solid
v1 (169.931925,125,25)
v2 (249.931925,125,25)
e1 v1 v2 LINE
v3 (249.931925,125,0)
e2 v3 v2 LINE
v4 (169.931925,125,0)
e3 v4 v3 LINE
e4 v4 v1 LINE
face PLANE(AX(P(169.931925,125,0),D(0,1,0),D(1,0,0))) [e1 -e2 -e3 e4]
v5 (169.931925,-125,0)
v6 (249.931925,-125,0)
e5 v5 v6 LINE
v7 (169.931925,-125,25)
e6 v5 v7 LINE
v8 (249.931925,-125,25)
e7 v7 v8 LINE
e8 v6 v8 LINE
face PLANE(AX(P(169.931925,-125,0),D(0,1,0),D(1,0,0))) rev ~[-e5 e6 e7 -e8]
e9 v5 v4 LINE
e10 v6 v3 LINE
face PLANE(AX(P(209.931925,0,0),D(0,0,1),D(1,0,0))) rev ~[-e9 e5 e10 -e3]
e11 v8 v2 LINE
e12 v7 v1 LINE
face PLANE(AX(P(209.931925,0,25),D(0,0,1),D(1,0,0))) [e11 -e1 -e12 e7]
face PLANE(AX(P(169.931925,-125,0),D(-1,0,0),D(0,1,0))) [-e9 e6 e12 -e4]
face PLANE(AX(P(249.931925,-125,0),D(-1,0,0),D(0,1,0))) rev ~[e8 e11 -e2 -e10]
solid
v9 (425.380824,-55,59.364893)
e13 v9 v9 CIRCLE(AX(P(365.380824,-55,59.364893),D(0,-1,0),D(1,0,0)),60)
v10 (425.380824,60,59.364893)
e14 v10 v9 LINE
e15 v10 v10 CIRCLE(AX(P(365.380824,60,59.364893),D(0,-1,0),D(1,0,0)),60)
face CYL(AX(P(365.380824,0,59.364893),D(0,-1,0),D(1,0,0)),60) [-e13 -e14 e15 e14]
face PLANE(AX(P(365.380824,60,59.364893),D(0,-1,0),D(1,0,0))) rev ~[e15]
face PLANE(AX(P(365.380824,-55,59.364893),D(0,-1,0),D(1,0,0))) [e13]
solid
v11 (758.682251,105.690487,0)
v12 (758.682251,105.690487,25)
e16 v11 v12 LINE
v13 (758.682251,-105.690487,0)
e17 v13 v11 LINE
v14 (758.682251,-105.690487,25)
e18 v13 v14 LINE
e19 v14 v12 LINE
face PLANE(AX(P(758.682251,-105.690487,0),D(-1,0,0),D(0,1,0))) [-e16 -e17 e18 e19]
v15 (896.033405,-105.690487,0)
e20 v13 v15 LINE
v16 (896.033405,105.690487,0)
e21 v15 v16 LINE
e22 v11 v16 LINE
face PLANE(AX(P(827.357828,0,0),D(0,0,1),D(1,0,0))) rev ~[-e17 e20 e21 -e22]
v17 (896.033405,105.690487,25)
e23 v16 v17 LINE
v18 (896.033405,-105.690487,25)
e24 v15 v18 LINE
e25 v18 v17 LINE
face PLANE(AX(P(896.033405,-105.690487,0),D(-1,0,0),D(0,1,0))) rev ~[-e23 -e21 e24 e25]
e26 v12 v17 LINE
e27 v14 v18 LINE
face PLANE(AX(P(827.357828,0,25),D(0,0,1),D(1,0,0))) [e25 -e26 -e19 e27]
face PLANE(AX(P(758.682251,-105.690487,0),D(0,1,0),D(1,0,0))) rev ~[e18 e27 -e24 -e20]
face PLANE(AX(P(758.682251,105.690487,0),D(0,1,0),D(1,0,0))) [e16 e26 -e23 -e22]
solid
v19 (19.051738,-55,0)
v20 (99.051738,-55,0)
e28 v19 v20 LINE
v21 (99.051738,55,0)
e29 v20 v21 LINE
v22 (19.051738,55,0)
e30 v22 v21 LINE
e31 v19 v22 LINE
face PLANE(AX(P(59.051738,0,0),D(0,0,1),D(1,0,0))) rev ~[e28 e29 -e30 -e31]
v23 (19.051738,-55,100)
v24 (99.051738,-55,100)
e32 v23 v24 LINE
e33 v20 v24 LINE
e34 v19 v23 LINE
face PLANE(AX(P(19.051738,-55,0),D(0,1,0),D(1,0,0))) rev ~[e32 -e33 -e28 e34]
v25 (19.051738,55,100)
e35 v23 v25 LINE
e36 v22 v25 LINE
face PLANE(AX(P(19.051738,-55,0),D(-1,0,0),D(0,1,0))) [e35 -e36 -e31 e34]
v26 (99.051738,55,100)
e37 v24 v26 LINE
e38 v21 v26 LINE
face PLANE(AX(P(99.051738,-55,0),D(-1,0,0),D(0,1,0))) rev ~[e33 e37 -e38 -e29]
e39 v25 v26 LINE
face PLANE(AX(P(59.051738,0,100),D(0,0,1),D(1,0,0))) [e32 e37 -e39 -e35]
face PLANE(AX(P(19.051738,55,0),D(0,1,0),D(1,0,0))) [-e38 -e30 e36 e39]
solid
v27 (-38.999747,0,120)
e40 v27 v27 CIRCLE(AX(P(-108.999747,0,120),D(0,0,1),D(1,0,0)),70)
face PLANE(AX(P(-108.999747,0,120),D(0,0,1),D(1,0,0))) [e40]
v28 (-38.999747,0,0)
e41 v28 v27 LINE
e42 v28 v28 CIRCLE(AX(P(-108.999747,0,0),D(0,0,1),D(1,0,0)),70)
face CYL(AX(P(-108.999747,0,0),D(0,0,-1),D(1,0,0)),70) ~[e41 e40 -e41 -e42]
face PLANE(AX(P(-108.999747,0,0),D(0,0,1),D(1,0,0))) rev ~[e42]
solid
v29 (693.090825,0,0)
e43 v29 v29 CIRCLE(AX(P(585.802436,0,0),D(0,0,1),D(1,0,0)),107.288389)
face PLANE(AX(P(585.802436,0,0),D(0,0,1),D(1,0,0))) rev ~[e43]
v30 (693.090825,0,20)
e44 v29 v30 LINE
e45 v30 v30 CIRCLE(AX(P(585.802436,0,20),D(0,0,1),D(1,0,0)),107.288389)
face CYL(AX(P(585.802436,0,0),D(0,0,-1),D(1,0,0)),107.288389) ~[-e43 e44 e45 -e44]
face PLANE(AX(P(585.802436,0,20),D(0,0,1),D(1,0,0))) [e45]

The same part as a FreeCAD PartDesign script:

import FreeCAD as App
import Part
import Sketcher
from FreeCAD import Vector

doc = App.newDocument("Part")
params = doc.addObject("Spreadsheet::Sheet", "Params")
for row, (alias, value) in enumerate([
    ("sketch1_diameter", "140 mm"),
    ("pad1_length", "120 mm"),
    ("sketch2_width", "80 mm"),
    ("sketch2_height", "110 mm"),
    ("pad2_length", "100 mm"),
    ("sketch3_width", "80 mm"),
    ("sketch3_height", "250 mm"),
    ("pad3_length", "25 mm"),
    ("sketch4_diameter", "120 mm"),
    ("pad4_length", "55 mm"),
    ("pad4_length2", "60 mm"),
    ("pad5_length", "20 mm"),
    ("pad6_length", "25 mm"),
], start=1):
    params.set(f"A{row}", alias)
    params.set(f"B{row}", "=" + value)
    params.setAlias(f"B{row}", alias)

body = doc.addObject("PartDesign::Body", "Body")

sketch1 = body.newObject("Sketcher::SketchObject", "Sketch")
sketch1.AttachmentSupport = (doc.getObject("XY_Plane"), [""])
sketch1.MapMode = "FlatFace"
sketch1.addGeometry(Part.Circle(Vector(-108.999747, 0, 0), Vector(0, 0, 1), 70), False)
sketch1.addConstraint([
    Sketcher.Constraint("PointOnObject", 0, 3, -1),
    Sketcher.Constraint("Diameter", 0, 140.0),
    Sketcher.Constraint("DistanceX", 0, 3, -1, 1, 108.999747),
])
sketch1.setExpression("Constraints[1]", "Params.sketch1_diameter")
pad1 = body.newObject("PartDesign::Pad", "Pad")
pad1.Profile = sketch1
pad1.setExpression("Length", "Params.pad1_length")
body2 = doc.addObject("PartDesign::Body", "Body001")

sketch2 = body2.newObject("Sketcher::SketchObject", "Sketch001")
sketch2.AttachmentSupport = (doc.getObject("XY_Plane001"), [""])
sketch2.MapMode = "FlatFace"
sketch2.addGeometry([
    Part.LineSegment(Vector(19, 55, 0), Vector(19, -55, 0)),
    Part.LineSegment(Vector(19, -55, 0), Vector(99, -55, 0)),
    Part.LineSegment(Vector(99, -55, 0), Vector(99, 55, 0)),
    Part.LineSegment(Vector(99, 55, 0), Vector(19, 55, 0)),
], False)
sketch2.addConstraint([
    Sketcher.Constraint("Coincident", 0, 2, 1, 1),
    Sketcher.Constraint("Coincident", 1, 2, 2, 1),
    Sketcher.Constraint("Coincident", 2, 2, 3, 1),
    Sketcher.Constraint("Coincident", 3, 2, 0, 1),
    Sketcher.Constraint("Vertical", 0),
    Sketcher.Constraint("Horizontal", 1),
    Sketcher.Constraint("Vertical", 2),
    Sketcher.Constraint("Horizontal", 3),
    Sketcher.Constraint("DistanceX", 1, 1, 1, 2, 80.0),
    Sketcher.Constraint("DistanceY", 0, 2, 0, 1, 110.0),
    Sketcher.Constraint("DistanceY", 0, 2, -1, 1, 55.0),
    Sketcher.Constraint("DistanceX", -1, 1, 0, 2, 19.051738),
])
sketch2.setExpression("Constraints[8]", "Params.sketch2_width")
sketch2.setExpression("Constraints[9]", "Params.sketch2_height")
pad2 = body2.newObject("PartDesign::Pad", "Pad001")
pad2.Profile = sketch2
pad2.setExpression("Length", "Params.pad2_length")
body3 = doc.addObject("PartDesign::Body", "Body002")

sketch3 = body3.newObject("Sketcher::SketchObject", "Sketch002")
sketch3.AttachmentSupport = (doc.getObject("XY_Plane002"), [""])
sketch3.MapMode = "FlatFace"
sketch3.addGeometry([
    Part.LineSegment(Vector(170, 125, 0), Vector(170, -125, 0)),
    Part.LineSegment(Vector(170, -125, 0), Vector(250, -125, 0)),
    Part.LineSegment(Vector(250, -125, 0), Vector(250, 125, 0)),
    Part.LineSegment(Vector(250, 125, 0), Vector(170, 125, 0)),
], False)
sketch3.addConstraint([
    Sketcher.Constraint("Coincident", 0, 2, 1, 1),
    Sketcher.Constraint("Coincident", 1, 2, 2, 1),
    Sketcher.Constraint("Coincident", 2, 2, 3, 1),
    Sketcher.Constraint("Coincident", 3, 2, 0, 1),
    Sketcher.Constraint("Vertical", 0),
    Sketcher.Constraint("Horizontal", 1),
    Sketcher.Constraint("Vertical", 2),
    Sketcher.Constraint("Horizontal", 3),
    Sketcher.Constraint("DistanceX", 1, 1, 1, 2, 80.0),
    Sketcher.Constraint("DistanceY", 0, 2, 0, 1, 250.0),
    Sketcher.Constraint("DistanceY", 0, 2, -1, 1, 125.0),
    Sketcher.Constraint("DistanceX", -1, 1, 0, 2, 169.931925),
])
sketch3.setExpression("Constraints[8]", "Params.sketch3_width")
sketch3.setExpression("Constraints[9]", "Params.sketch3_height")
pad3 = body3.newObject("PartDesign::Pad", "Pad002")
pad3.Profile = sketch3
pad3.setExpression("Length", "Params.pad3_length")
body4 = doc.addObject("PartDesign::Body", "Body003")

sketch4 = body4.newObject("Sketcher::SketchObject", "Sketch003")
sketch4.AttachmentSupport = (doc.getObject("XZ_Plane003"), [""])
sketch4.MapMode = "FlatFace"
sketch4.addGeometry(Part.Circle(Vector(365, 59, 0), Vector(0, 0, 1), 60), False)
sketch4.addConstraint([
    Sketcher.Constraint("Diameter", 0, 120.0),
    Sketcher.Constraint("DistanceX", -1, 1, 0, 3, 365.380824),
    Sketcher.Constraint("DistanceY", -1, 1, 0, 3, 59.364893),
])
sketch4.setExpression("Constraints[0]", "Params.sketch4_diameter")
pad4 = body4.newObject("PartDesign::Pad", "Pad003")
pad4.Profile = sketch4
pad4.Type = "TwoLengths"
pad4.setExpression("Length", "Params.pad4_length")
pad4.setExpression("Length2", "Params.pad4_length2")
body5 = doc.addObject("PartDesign::Body", "Body004")

sketch5 = body5.newObject("Sketcher::SketchObject", "Sketch004")
sketch5.AttachmentSupport = (doc.getObject("XY_Plane004"), [""])
sketch5.MapMode = "FlatFace"
sketch5.addGeometry(Part.Circle(Vector(586, 0, 0), Vector(0, 0, 1), 107), False)
sketch5.addConstraint([
    Sketcher.Constraint("PointOnObject", 0, 3, -1),
    Sketcher.Constraint("Diameter", 0, 214.576778),
    Sketcher.Constraint("DistanceX", -1, 1, 0, 3, 585.802436),
])
pad5 = body5.newObject("PartDesign::Pad", "Pad004")
pad5.Profile = sketch5
pad5.setExpression("Length", "Params.pad5_length")
body6 = doc.addObject("PartDesign::Body", "Body005")

sketch6 = body6.newObject("Sketcher::SketchObject", "Sketch005")
sketch6.AttachmentSupport = (doc.getObject("XY_Plane005"), [""])
sketch6.MapMode = "FlatFace"
sketch6.addGeometry([
    Part.LineSegment(Vector(759, 106, 0), Vector(759, -106, 0)),
    Part.LineSegment(Vector(759, -106, 0), Vector(896, -106, 0)),
    Part.LineSegment(Vector(896, -106, 0), Vector(896, 106, 0)),
    Part.LineSegment(Vector(896, 106, 0), Vector(759, 106, 0)),
], False)
sketch6.addConstraint([
    Sketcher.Constraint("Coincident", 0, 2, 1, 1),
    Sketcher.Constraint("Coincident", 1, 2, 2, 1),
    Sketcher.Constraint("Coincident", 2, 2, 3, 1),
    Sketcher.Constraint("Coincident", 3, 2, 0, 1),
    Sketcher.Constraint("Vertical", 0),
    Sketcher.Constraint("Horizontal", 1),
    Sketcher.Constraint("Vertical", 2),
    Sketcher.Constraint("Horizontal", 3),
    Sketcher.Constraint("DistanceX", 1, 1, 1, 2, 137.351155),
    Sketcher.Constraint("DistanceY", 0, 2, 0, 1, 211.380974),
    Sketcher.Constraint("DistanceX", -1, 1, 0, 2, 758.682251),
    Sketcher.Constraint("DistanceY", 0, 2, -1, 1, 105.690487),
])
pad6 = body6.newObject("PartDesign::Pad", "Pad005")
pad6.Profile = sketch6
pad6.setExpression("Length", "Params.pad6_length")

doc.recompute()
